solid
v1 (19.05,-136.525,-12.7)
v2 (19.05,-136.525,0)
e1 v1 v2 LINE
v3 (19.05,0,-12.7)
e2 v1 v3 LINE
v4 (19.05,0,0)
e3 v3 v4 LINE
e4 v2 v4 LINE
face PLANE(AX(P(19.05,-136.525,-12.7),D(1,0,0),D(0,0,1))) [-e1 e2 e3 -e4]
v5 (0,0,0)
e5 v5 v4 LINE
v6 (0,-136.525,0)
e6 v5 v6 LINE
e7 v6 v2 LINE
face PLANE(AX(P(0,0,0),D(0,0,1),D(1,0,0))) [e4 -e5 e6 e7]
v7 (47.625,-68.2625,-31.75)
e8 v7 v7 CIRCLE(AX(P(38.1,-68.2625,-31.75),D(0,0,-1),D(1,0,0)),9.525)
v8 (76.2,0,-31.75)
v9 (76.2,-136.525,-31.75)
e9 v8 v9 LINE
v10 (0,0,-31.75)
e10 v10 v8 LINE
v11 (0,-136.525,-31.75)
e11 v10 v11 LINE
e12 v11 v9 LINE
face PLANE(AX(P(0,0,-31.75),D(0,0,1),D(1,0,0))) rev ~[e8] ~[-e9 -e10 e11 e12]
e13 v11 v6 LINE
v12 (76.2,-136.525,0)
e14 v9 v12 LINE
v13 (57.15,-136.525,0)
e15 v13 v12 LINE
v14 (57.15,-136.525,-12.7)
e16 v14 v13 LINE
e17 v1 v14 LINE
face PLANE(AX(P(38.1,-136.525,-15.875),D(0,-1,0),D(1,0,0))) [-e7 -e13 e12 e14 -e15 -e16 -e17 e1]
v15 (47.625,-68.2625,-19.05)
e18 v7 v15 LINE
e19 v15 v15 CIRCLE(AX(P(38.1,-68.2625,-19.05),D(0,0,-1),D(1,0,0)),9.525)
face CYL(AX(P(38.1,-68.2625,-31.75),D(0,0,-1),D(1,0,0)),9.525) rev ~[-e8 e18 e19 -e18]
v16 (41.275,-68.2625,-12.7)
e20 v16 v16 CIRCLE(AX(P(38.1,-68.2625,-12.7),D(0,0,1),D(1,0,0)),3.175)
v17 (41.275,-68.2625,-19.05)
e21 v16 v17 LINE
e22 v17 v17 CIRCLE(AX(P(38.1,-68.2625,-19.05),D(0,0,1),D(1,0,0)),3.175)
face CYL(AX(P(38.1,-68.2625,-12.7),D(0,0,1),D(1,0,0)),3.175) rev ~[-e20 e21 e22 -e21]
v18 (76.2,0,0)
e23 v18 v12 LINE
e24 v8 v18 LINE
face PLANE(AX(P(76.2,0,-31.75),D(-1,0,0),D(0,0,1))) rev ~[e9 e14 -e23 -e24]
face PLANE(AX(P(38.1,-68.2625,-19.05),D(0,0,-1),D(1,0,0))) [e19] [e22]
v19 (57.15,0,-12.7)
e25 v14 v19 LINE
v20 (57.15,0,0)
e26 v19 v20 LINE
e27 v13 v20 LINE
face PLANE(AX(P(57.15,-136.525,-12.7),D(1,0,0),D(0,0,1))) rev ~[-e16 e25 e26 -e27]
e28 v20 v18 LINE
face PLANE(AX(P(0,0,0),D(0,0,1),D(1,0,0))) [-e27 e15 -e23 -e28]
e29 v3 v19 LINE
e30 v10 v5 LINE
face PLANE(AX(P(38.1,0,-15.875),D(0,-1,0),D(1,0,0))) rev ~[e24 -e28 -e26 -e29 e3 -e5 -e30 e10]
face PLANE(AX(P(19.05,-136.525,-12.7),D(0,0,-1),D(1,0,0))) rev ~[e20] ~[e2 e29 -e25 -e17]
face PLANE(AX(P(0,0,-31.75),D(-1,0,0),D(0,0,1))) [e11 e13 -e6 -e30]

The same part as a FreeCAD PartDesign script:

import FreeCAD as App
import Part
import Sketcher
from FreeCAD import Vector
Q = App.Units.Quantity


def add_polygon(sketch, points):
    """Adds a closed chain of lines whose ends are joined by coincident constraints."""
    first, n = sketch.GeometryCount, len(points)
    for a, b in zip(points, points[1:] + points[:1]):
        sketch.addGeometry(Part.LineSegment(App.Vector(*a, 0), App.Vector(*b, 0)), False)
    for i in range(n):
        sketch.addConstraint(Sketcher.Constraint("Coincident", first + i, 2, first + (i + 1) % n, 1))

doc = App.newDocument("Part")
params = doc.addObject("Spreadsheet::Sheet", "Params")
for row, (alias, value) in enumerate([
    ("sketch1_width", "3 in"),
    ("sketch1_height", "1.25 in"),
    ("pad1_length", "5.375 in"),
    ("sketch2_width", "1.5 in"),
    ("sketch2_height", "0.5 in"),
    ("pocket1_length", "10 in"),
    ("sketch3_diameter", "0.75 in"),
    ("pocket2_length", "0.5 in"),
    ("sketch4_diameter", "0.25 in"),
    ("pocket3_length", "10 in"),
], start=1):
    params.set(f"A{row}", alias)
    params.set(f"B{row}", "=" + value)
    params.setAlias(f"B{row}", alias)

body = doc.addObject("PartDesign::Body", "Body")

sketch1 = body.newObject("Sketcher::SketchObject", "Sketch")
sketch1.AttachmentSupport = (doc.getObject("XZ_Plane"), [""])
sketch1.MapMode = "FlatFace"
add_polygon(sketch1, [(0, 0), (0, -32), (76, -32), (76, 0)])
sketch1.addConstraint([
    Sketcher.Constraint("Vertical", 0),
    Sketcher.Constraint("Horizontal", 1),
    Sketcher.Constraint("Vertical", 2),
    Sketcher.Constraint("Horizontal", 3),
    Sketcher.Constraint("Coincident", 3, 2, -1, 1),
    Sketcher.Constraint("DistanceX", 1, 1, 1, 2, Q("3 in")),
    Sketcher.Constraint("DistanceY", 0, 2, 0, 1, Q("1.25 in")),
])
sketch1.setExpression("Constraints[9]", "Params.sketch1_width")
sketch1.setExpression("Constraints[10]", "Params.sketch1_height")
pad1 = body.newObject("PartDesign::Pad", "Pad")
pad1.Profile = sketch1
pad1.setExpression("Length", "Params.pad1_length")

sketch2 = body.newObject("Sketcher::SketchObject", "Sketch001")
sketch2.AttachmentSupport = (doc.getObject("XZ_Plane"), [""])
sketch2.MapMode = "FlatFace"
sketch2.AttachmentOffset = App.Placement(Vector(0, 0, 5.375 * 25.4), App.Rotation())
add_polygon(sketch2, [(19, 0), (19, -13), (57, -13), (57, 0)])
sketch2.addConstraint([
    Sketcher.Constraint("Vertical", 0),
    Sketcher.Constraint("Horizontal", 1),
    Sketcher.Constraint("Vertical", 2),
    Sketcher.Constraint("Horizontal", 3),
    Sketcher.Constraint("PointOnObject", 2, 2, -1),
    Sketcher.Constraint("DistanceX", 1, 1, 1, 2, Q("1.5 in")),
    Sketcher.Constraint("DistanceY", 0, 2, 0, 1, Q("0.5 in")),
    Sketcher.Constraint("DistanceX", -1, 1, 0, 2, Q("0.75 in")),
])
sketch2.setExpression("Constraints[9]", "Params.sketch2_width")
sketch2.setExpression("Constraints[10]", "Params.sketch2_height")
pocket1 = body.newObject("PartDesign::Pocket", "Pocket")
pocket1.Profile = sketch2
pocket1.setExpression("Length", "Params.pocket1_length")

sketch3 = body.newObject("Sketcher::SketchObject", "Sketch002")
sketch3.AttachmentSupport = (doc.getObject("XY_Plane"), [""])
sketch3.MapMode = "FlatFace"
sketch3.AttachmentOffset = App.Placement(Vector(0, 0, -1.25 * 25.4), App.Rotation())
sketch3.addGeometry(Part.Circle(Vector(38, -68, 0), Vector(0, 0, 1), 10), False)
sketch3.addConstraint([
    Sketcher.Constraint("Diameter", 0, Q("0.75 in")),
    Sketcher.Constraint("DistanceX", -1, 1, 0, 3, Q("1.5 in")),
    Sketcher.Constraint("DistanceY", 0, 3, -1, 1, Q("2.6875 in")),
])
sketch3.setExpression("Constraints[0]", "Params.sketch3_diameter")
pocket2 = body.newObject("PartDesign::Pocket", "Pocket001")
pocket2.Profile = sketch3
pocket2.setExpression("Length", "Params.pocket2_length")
pocket2.Reversed = True

sketch4 = body.newObject("Sketcher::SketchObject", "Sketch003")
sketch4.AttachmentSupport = (doc.getObject("XY_Plane"), [""])
sketch4.MapMode = "FlatFace"
sketch4.AttachmentOffset = App.Placement(Vector(0, 0, -0.5 * 25.4), App.Rotation())
sketch4.addGeometry(Part.Circle(Vector(38.1, -68.3, 0), Vector(0, 0, 1), 3.2), False)
sketch4.addConstraint([
    Sketcher.Constraint("Diameter", 0, Q("0.25 in")),
    Sketcher.Constraint("DistanceX", -1, 1, 0, 3, Q("1.5 in")),
    Sketcher.Constraint("DistanceY", 0, 3, -1, 1, Q("2.6875 in")),
])
sketch4.setExpression("Constraints[0]", "Params.sketch4_diameter")
pocket3 = body.newObject("PartDesign::Pocket", "Pocket002")
pocket3.Profile = sketch4
pocket3.setExpression("Length", "Params.pocket3_length")

doc.recompute()
